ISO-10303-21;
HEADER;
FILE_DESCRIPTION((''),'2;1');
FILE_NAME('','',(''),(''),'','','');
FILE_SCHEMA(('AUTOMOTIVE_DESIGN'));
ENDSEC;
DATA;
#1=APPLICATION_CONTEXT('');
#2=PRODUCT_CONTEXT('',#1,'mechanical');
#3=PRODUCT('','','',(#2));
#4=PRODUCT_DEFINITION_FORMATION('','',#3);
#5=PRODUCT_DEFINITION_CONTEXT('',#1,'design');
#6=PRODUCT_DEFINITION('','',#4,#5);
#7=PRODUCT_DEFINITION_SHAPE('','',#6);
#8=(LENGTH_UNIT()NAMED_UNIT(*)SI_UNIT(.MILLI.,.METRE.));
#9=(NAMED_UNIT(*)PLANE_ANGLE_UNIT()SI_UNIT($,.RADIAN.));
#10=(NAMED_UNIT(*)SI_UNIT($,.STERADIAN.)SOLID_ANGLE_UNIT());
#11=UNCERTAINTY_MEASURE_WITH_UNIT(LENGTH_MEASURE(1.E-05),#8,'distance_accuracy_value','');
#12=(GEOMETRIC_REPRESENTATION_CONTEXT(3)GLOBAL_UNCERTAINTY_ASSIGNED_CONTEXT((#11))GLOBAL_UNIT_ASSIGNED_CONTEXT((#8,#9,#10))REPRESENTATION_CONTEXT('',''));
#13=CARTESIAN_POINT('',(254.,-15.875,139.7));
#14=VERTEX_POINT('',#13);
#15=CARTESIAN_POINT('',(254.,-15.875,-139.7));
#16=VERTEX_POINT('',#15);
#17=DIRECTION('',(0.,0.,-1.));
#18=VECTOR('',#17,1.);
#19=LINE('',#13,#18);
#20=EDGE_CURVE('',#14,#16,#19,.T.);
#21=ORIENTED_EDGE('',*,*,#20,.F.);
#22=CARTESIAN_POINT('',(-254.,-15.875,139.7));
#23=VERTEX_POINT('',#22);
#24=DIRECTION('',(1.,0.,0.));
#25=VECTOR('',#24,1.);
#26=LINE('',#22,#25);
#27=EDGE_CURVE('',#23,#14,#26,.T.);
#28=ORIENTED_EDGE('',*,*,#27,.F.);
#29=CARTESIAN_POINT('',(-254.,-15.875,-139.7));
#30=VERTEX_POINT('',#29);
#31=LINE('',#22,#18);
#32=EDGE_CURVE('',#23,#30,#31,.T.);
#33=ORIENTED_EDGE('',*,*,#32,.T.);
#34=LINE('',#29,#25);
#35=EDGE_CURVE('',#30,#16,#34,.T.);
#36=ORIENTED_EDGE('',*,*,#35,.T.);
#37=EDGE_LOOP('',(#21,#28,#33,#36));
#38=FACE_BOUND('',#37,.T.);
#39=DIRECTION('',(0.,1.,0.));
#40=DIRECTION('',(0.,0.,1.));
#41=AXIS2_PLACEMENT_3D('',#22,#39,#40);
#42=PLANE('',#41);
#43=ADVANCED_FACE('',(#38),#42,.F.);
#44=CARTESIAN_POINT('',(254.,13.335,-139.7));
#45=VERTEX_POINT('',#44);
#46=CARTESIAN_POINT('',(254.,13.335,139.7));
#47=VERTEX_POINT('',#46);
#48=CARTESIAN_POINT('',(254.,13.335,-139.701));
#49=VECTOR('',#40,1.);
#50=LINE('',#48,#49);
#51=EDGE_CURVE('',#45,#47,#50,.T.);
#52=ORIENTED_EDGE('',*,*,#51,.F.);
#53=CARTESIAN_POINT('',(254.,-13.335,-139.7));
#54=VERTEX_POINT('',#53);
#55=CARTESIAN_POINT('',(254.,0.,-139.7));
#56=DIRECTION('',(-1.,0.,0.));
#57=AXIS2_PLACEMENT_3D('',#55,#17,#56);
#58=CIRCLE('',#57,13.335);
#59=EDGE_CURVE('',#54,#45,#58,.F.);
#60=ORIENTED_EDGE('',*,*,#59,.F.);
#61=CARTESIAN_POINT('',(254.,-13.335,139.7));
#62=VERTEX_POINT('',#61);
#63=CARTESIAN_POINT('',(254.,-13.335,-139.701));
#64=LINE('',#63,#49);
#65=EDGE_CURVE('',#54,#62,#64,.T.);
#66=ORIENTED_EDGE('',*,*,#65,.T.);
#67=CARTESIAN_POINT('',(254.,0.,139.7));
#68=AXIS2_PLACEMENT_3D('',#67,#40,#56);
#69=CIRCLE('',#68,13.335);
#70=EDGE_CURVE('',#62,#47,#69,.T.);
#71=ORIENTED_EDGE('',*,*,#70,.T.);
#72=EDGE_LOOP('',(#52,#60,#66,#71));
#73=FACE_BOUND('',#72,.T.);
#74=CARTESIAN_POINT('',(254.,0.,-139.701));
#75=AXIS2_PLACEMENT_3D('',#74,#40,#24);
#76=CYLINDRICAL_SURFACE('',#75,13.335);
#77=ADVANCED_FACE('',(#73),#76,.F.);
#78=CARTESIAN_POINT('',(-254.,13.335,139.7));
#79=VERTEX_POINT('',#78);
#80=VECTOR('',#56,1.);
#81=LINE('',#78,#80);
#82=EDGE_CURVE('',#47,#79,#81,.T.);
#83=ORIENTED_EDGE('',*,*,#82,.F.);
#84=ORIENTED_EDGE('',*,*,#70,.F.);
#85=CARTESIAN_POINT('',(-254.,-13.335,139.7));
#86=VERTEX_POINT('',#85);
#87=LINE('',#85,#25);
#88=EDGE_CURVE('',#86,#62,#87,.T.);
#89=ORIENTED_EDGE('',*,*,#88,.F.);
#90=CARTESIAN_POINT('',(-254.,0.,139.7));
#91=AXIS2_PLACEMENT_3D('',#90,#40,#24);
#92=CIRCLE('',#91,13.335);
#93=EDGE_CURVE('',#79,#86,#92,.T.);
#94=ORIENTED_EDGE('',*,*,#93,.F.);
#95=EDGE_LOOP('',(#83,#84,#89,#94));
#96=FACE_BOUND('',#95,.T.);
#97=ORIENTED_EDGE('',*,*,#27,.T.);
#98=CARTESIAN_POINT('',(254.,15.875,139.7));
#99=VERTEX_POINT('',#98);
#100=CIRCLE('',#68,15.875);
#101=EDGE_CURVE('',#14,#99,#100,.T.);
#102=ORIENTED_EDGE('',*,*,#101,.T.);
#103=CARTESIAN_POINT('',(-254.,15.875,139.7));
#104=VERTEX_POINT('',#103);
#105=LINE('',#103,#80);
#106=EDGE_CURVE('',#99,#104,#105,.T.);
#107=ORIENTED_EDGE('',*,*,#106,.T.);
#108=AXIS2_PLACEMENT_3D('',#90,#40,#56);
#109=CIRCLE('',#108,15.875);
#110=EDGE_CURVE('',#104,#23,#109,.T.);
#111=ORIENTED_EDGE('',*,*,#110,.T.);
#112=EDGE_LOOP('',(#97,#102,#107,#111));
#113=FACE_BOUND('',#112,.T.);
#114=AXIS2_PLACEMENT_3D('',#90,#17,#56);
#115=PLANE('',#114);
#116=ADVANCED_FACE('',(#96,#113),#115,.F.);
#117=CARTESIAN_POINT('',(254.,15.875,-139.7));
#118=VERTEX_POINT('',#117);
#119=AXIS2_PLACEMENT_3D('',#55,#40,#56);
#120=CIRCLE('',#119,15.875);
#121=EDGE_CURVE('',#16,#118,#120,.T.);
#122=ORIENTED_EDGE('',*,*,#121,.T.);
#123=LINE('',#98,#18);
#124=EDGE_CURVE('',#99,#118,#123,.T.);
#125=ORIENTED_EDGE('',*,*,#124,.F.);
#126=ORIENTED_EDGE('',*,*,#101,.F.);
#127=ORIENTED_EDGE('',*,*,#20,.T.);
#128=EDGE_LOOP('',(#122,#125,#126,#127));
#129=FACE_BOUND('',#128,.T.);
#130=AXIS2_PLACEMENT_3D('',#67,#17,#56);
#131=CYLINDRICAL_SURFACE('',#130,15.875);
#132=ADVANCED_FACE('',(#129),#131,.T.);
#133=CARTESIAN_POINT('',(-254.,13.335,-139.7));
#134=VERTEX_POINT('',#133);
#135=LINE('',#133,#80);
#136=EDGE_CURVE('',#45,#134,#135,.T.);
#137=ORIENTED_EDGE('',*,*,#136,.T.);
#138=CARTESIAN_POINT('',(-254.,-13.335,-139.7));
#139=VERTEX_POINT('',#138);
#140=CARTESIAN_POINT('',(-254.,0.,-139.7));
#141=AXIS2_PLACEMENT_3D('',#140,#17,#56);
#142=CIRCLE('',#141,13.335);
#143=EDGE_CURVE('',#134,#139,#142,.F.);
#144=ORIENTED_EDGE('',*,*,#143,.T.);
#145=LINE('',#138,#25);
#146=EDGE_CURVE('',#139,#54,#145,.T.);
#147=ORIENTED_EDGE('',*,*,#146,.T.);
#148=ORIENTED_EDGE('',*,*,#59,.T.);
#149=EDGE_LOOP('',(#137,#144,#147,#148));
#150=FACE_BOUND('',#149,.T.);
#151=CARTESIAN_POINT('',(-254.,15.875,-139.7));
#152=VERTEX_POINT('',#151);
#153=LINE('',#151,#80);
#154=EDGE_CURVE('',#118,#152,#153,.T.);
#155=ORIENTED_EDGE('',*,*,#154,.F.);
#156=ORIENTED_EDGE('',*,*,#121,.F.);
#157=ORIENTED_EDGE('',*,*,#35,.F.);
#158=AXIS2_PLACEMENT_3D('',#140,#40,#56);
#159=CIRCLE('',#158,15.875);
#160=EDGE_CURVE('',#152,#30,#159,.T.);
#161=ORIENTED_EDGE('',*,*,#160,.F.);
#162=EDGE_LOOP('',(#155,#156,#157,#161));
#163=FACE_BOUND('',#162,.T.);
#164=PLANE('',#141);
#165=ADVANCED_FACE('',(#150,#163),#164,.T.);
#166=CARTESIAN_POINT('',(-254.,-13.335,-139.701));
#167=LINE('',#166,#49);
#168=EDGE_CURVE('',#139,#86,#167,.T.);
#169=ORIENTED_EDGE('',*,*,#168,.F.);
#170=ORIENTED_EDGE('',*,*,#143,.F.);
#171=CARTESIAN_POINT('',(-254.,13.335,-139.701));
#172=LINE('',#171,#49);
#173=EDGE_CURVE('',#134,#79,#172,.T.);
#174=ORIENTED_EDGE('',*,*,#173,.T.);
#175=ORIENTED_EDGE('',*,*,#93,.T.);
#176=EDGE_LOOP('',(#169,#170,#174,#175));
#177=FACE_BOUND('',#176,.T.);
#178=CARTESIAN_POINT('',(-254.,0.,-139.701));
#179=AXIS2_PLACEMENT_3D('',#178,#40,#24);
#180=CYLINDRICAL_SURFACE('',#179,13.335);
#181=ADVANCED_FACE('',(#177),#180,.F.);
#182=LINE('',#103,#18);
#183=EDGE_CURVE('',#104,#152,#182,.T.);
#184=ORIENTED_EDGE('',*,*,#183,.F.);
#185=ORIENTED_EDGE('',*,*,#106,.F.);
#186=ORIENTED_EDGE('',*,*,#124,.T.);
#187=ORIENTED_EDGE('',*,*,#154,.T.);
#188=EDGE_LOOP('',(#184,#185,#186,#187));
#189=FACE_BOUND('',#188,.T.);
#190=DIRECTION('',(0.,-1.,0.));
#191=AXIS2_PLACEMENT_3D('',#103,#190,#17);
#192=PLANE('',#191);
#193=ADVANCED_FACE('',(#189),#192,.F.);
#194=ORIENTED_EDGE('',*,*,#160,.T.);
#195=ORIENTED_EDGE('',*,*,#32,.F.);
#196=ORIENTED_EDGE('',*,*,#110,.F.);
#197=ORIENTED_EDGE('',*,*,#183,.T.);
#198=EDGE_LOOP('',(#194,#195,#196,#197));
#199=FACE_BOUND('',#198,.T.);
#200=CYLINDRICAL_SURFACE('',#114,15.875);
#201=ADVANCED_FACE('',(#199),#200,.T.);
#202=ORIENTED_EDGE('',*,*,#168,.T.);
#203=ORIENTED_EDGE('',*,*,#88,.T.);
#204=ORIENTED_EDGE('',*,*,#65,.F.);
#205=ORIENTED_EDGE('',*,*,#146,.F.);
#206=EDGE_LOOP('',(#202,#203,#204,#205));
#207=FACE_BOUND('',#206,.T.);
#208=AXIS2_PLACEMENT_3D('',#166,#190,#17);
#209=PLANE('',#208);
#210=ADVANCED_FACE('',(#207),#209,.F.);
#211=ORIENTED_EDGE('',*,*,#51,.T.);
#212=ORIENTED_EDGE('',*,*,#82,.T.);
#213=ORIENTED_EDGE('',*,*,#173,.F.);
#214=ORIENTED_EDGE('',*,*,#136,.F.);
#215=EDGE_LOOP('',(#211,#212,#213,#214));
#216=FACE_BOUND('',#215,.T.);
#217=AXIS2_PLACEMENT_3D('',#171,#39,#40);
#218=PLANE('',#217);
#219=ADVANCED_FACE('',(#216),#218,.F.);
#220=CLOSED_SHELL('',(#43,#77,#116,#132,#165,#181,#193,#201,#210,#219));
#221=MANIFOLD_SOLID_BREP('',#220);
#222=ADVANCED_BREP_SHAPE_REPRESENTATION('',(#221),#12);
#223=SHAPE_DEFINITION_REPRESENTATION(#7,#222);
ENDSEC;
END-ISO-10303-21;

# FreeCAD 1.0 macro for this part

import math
import FreeCAD as App
import Part
import Sketcher
from FreeCAD import Vector
Q = App.Units.Quantity

doc = App.newDocument("Part")
body = doc.addObject("PartDesign::Body", "Body")

# Sketch on XY plane
sketch1 = body.newObject("Sketcher::SketchObject", "Sketch")
sketch1.AttachmentSupport = (doc.getObject("XY_Plane"), [""])
sketch1.MapMode = "FlatFace"
sketch1.addGeometry([
    Part.LineSegment(Vector(254, 16, 0), Vector(-254, 16, 0)),
    Part.ArcOfCircle(Part.Circle(Vector(-254, 0, 0), Vector(0, 0, 1), 16), math.radians(90), math.radians(270)),
    Part.LineSegment(Vector(-254, -16, 0), Vector(254, -16, 0)),
    Part.ArcOfCircle(Part.Circle(Vector(254, 0, 0), Vector(0, 0, 1), 16), math.radians(-90), math.radians(90)),
], False)
sketch1.addConstraint([
    Sketcher.Constraint("Tangent", 0, 2, 1, 1),
    Sketcher.Constraint("Tangent", 1, 2, 2, 1),
    Sketcher.Constraint("Tangent", 2, 2, 3, 1),
    Sketcher.Constraint("Tangent", 3, 2, 0, 1),
    Sketcher.Constraint("Horizontal", 0),
    Sketcher.Constraint("Horizontal", 2),
    Sketcher.Constraint("Symmetric", 1, 3, 3, 3, -1, 1),
    Sketcher.Constraint("DistanceX", 0, 2, 0, 1, Q("20 in")),
    Sketcher.Constraint("Radius", 1, Q("0.625 in")),
])
pad1 = body.newObject("PartDesign::Pad", "Pad")
pad1.Profile = sketch1
pad1.Length = Q("11 in")
pad1.Midplane = True

# Sketch on XY plane
sketch2 = body.newObject("Sketcher::SketchObject", "Sketch001")
sketch2.AttachmentSupport = (doc.getObject("XY_Plane"), [""])
sketch2.MapMode = "FlatFace"
sketch2.AttachmentOffset = App.Placement(Vector(0, 0, 5.5 * 25.4), App.Rotation())
sketch2.addGeometry([
    Part.LineSegment(Vector(254, 13, 0), Vector(-254, 13, 0)),
    Part.ArcOfCircle(Part.Circle(Vector(-254, 0, 0), Vector(0, 0, 1), 13), math.radians(90), math.radians(270)),
    Part.LineSegment(Vector(-254, -13, 0), Vector(254, -13, 0)),
    Part.ArcOfCircle(Part.Circle(Vector(254, 0, 0), Vector(0, 0, 1), 13), math.radians(-90), math.radians(90)),
], False)
sketch2.addConstraint([
    Sketcher.Constraint("Tangent", 0, 2, 1, 1),
    Sketcher.Constraint("Tangent", 1, 2, 2, 1),
    Sketcher.Constraint("Tangent", 2, 2, 3, 1),
    Sketcher.Constraint("Tangent", 3, 2, 0, 1),
    Sketcher.Constraint("Horizontal", 0),
    Sketcher.Constraint("Horizontal", 2),
    Sketcher.Constraint("Symmetric", 1, 3, 3, 3, -1, 1),
    Sketcher.Constraint("DistanceX", 0, 2, 0, 1, Q("20 in")),
    Sketcher.Constraint("Radius", 1, Q("0.525 in")),
])
pocket1 = body.newObject("PartDesign::Pocket", "Pocket")
pocket1.Profile = sketch2
pocket1.Type = "UpToFirst"

doc.recompute()
